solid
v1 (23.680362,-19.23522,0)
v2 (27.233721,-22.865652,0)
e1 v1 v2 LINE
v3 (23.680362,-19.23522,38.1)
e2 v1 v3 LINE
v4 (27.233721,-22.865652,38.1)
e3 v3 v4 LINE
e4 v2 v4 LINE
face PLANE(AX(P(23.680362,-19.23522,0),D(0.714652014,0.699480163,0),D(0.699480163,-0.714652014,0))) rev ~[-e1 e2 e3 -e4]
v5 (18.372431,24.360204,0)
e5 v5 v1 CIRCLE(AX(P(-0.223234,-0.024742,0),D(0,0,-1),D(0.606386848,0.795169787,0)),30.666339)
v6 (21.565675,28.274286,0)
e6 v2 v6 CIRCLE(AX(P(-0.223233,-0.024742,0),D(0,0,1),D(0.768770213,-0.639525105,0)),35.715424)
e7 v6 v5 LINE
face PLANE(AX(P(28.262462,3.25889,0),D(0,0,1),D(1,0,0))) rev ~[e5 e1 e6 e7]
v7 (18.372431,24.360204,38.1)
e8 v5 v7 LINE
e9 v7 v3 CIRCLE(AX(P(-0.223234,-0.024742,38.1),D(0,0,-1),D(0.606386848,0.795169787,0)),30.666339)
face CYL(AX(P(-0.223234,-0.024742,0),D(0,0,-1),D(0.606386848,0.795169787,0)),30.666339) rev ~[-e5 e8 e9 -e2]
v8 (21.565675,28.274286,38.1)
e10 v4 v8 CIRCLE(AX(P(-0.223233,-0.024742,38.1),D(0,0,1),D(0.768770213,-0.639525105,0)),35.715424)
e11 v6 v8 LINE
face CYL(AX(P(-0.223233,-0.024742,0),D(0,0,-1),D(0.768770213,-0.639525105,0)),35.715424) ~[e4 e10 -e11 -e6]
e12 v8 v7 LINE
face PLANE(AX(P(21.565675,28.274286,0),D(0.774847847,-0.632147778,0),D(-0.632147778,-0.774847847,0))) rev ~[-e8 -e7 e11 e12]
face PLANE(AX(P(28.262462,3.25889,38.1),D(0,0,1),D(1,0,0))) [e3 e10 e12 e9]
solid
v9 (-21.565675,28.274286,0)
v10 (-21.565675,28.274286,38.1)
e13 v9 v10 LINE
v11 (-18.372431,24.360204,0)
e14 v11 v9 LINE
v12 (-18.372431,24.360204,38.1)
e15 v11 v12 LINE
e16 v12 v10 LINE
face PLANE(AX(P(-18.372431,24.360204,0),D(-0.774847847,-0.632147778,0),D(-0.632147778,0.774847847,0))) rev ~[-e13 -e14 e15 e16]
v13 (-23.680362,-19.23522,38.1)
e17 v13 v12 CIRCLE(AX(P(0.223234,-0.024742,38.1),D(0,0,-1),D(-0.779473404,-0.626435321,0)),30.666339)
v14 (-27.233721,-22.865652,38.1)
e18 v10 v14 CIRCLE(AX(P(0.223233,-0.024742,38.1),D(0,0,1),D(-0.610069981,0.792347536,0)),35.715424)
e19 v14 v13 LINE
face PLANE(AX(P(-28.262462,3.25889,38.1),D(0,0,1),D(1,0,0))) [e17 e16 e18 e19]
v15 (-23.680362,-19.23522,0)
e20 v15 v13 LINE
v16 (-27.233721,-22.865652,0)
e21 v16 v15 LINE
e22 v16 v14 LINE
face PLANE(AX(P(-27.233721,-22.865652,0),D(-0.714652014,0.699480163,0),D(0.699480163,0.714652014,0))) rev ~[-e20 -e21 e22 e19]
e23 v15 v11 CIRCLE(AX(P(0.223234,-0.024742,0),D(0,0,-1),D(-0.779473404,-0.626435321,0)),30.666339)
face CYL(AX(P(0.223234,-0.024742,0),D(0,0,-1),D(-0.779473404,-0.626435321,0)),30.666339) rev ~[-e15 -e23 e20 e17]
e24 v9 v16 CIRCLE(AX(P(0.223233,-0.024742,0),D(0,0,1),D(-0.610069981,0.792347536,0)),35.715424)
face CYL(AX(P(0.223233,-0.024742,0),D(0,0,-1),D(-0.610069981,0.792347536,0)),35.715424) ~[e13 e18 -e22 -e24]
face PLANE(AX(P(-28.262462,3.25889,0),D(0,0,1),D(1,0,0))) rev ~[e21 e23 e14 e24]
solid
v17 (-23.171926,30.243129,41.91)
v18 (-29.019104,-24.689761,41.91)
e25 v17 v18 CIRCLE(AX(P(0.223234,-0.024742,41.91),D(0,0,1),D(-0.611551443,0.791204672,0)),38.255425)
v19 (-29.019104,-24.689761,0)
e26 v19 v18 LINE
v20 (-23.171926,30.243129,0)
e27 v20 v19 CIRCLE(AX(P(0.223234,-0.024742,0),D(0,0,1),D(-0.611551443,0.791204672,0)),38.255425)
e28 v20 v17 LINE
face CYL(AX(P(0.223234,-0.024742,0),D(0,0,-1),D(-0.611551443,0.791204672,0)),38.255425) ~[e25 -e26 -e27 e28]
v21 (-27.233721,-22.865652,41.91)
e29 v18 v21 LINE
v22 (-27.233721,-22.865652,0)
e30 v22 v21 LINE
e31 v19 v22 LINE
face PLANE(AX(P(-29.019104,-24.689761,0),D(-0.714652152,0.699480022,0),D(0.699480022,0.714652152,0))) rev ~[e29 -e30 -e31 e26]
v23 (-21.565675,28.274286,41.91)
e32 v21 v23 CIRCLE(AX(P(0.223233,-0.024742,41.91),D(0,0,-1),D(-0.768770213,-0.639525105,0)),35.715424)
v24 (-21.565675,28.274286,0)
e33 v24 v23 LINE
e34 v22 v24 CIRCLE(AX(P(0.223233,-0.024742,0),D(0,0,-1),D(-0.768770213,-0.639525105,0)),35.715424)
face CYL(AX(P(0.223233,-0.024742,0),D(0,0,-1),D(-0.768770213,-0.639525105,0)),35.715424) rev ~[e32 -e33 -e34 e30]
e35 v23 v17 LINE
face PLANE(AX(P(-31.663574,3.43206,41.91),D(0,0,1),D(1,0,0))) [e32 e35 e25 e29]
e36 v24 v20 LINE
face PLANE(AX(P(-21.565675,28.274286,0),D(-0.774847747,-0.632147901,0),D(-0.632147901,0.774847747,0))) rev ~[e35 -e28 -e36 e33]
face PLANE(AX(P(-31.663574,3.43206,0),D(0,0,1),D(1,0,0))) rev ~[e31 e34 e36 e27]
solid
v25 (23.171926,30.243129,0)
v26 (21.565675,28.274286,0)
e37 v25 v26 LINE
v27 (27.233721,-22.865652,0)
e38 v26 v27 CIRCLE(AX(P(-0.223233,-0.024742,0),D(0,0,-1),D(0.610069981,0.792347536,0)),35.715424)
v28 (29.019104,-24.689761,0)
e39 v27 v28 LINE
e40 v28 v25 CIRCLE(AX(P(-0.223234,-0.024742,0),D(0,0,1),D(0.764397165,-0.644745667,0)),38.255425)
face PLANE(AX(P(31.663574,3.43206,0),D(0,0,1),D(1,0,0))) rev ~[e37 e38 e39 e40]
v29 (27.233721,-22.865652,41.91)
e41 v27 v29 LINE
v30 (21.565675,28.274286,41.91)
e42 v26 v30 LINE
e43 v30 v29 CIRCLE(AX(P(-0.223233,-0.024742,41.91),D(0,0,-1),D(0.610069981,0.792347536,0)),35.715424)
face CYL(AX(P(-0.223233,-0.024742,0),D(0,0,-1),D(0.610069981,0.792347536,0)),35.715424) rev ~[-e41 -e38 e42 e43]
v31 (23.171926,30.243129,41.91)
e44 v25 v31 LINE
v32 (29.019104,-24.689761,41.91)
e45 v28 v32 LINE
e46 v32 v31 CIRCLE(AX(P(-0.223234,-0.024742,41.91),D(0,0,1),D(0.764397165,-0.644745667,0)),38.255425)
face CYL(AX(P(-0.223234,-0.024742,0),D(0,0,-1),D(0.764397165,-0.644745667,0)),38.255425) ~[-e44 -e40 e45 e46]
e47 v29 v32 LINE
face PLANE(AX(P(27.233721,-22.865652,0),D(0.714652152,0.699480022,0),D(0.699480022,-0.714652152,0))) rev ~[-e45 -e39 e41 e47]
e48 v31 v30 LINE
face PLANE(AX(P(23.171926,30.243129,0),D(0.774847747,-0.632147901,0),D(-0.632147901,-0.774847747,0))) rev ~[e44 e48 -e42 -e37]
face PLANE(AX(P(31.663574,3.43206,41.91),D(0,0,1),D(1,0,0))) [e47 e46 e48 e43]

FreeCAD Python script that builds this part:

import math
import FreeCAD as App
import Part
import Sketcher
Q = App.Units.Quantity

doc = App.newDocument("Part")
body = doc.addObject("PartDesign::Body", "Body")
body.AllowCompound = True

sketch1 = body.newObject("Sketcher::SketchObject", "Sketch")
sketch1.AttachmentSupport = (doc.getObject("XY_Plane"), [""])
sketch1.MapMode = "FlatFace"
sketch1.addGeometry([
    Part.ArcOfCircle(Part.Circle(App.Vector(0.223233, -0.024742, 0), App.Vector(0, 0, 1), 35.715424), math.radians(127.594563), math.radians(219.756417)),
    Part.LineSegment(App.Vector(-21.565675, 28.274286, 0), App.Vector(-23.171926, 30.243129, 0)),
    Part.ArcOfCircle(Part.Circle(App.Vector(0.223234, -0.024742, 0), App.Vector(0, 0, 1), 38.255425), math.radians(127.701767), math.radians(220.146609)),
    Part.LineSegment(App.Vector(-29.019104, -24.689761, 0), App.Vector(-27.233721, -22.865652, 0)),
    Part.LineSegment(App.Vector(23.171926, 30.243129, 0), App.Vector(21.565675, 28.274286, 0)),
    Part.ArcOfCircle(Part.Circle(App.Vector(-0.223233, -0.024742, 0), App.Vector(0, 0, 1), 35.715424), math.radians(-39.756417), math.radians(52.405437)),
    Part.LineSegment(App.Vector(27.233721, -22.865652, 0), App.Vector(29.019104, -24.689761, 0)),
    Part.ArcOfCircle(Part.Circle(App.Vector(-0.223234, -0.024742, 0), App.Vector(0, 0, 1), 38.255425), math.radians(-40.146609), math.radians(52.298233)),
], False)
sketch1.addConstraint([
    Sketcher.Constraint("Coincident", 0, 1, 1, 1),
    Sketcher.Constraint("Coincident", 1, 2, 2, 1),
    Sketcher.Constraint("Coincident", 2, 2, 3, 1),
    Sketcher.Constraint("Coincident", 3, 2, 0, 2),
    Sketcher.Constraint("Coincident", 4, 2, 5, 2),
    Sketcher.Constraint("Coincident", 5, 1, 6, 1),
    Sketcher.Constraint("Coincident", 6, 2, 7, 1),
    Sketcher.Constraint("Coincident", 7, 2, 4, 1),
    Sketcher.Constraint("Coincident", 2, 3, 0, 3),
    Sketcher.Constraint("Coincident", 7, 3, 5, 3),
    Sketcher.Constraint("Equal", 0, 5),
    Sketcher.Constraint("Equal", 2, 7),
    Sketcher.Constraint("Symmetric", 0, 3, 5, 3, -2),
    Sketcher.Constraint("Horizontal", 0, 1, 4, 2),
    Sketcher.Constraint("Horizontal", 3, 2, 5, 1),
    Sketcher.Constraint("Horizontal", 2, 2, 6, 2),
    Sketcher.Constraint("Horizontal", 1, 2, 7, 2),
    Sketcher.Constraint("Radius", 0, 35.715424),
    Sketcher.Constraint("Radius", 2, 38.255425),
    Sketcher.Constraint("Distance", 1, 2.540942),
    Sketcher.Constraint("DistanceY", 0, 3, -1, 1, 0.024742),
    Sketcher.Constraint("DistanceY", -1, 1, 1, 2, 30.243129),
    Sketcher.Constraint("DistanceY", 2, 2, -1, 1, 24.689761),
    Sketcher.Constraint("DistanceX", 3, 2, -1, 1, 27.233721),
    Sketcher.Constraint("DistanceY", 5, 1, -1, 1, 22.865652),
])
pad1 = body.newObject("PartDesign::Pad", "Pad")
pad1.Profile = sketch1
pad1.Length = Q("1.65 in")
body2 = doc.addObject("PartDesign::Body", "Body001")
body2.AllowCompound = True

sketch2 = body2.newObject("Sketcher::SketchObject", "Sketch001")
sketch2.AttachmentSupport = (doc.getObject("XY_Plane001"), [""])
sketch2.MapMode = "FlatFace"
sketch2.addGeometry([
    Part.ArcOfCircle(Part.Circle(App.Vector(0.223234, -0.024742, 0), App.Vector(0, 0, 1), 30.666339), math.radians(127.328705), math.radians(218.787614)),
    Part.LineSegment(App.Vector(-18.372431, 24.360204, 0), App.Vector(-21.565675, 28.274286, 0)),
    Part.ArcOfCircle(Part.Circle(App.Vector(0.223233, -0.024742, 0), App.Vector(0, 0, 1), 35.715424), math.radians(127.594563), math.radians(219.756417)),
    Part.LineSegment(App.Vector(-27.233721, -22.865652, 0), App.Vector(-23.680362, -19.23522, 0)),
    Part.LineSegment(App.Vector(21.565675, 28.274286, 0), App.Vector(18.372431, 24.360204, 0)),
    Part.ArcOfCircle(Part.Circle(App.Vector(-0.223234, -0.024742, 0), App.Vector(0, 0, 1), 30.666339), math.radians(-38.787614), math.radians(52.671295)),
    Part.LineSegment(App.Vector(23.680362, -19.23522, 0), App.Vector(27.233721, -22.865652, 0)),
    Part.ArcOfCircle(Part.Circle(App.Vector(-0.223233, -0.024742, 0), App.Vector(0, 0, 1), 35.715424), math.radians(-39.756417), math.radians(52.405437)),
], False)
sketch2.addConstraint([
    Sketcher.Constraint("Coincident", 0, 1, 1, 1),
    Sketcher.Constraint("Coincident", 1, 2, 2, 1),
    Sketcher.Constraint("Coincident", 2, 2, 3, 1),
    Sketcher.Constraint("Coincident", 3, 2, 0, 2),
    Sketcher.Constraint("Coincident", 4, 2, 5, 2),
    Sketcher.Constraint("Coincident", 5, 1, 6, 1),
    Sketcher.Constraint("Coincident", 6, 2, 7, 1),
    Sketcher.Constraint("Coincident", 7, 2, 4, 1),
    Sketcher.Constraint("Coincident", 2, 3, 0, 3),
    Sketcher.Constraint("Coincident", 7, 3, 5, 3),
    Sketcher.Constraint("Equal", 0, 5),
    Sketcher.Constraint("Equal", 2, 7),
    Sketcher.Constraint("Symmetric", 0, 3, 5, 3, -2),
    Sketcher.Constraint("Horizontal", 0, 1, 4, 2),
    Sketcher.Constraint("Horizontal", 3, 2, 5, 1),
    Sketcher.Constraint("Horizontal", 2, 2, 6, 2),
    Sketcher.Constraint("Horizontal", 1, 2, 7, 2),
    Sketcher.Constraint("Distance", 3, Q("0.2 in")),
    Sketcher.Constraint("Radius", 0, 30.666339),
    Sketcher.Constraint("Radius", 2, 35.715424),
    Sketcher.Constraint("DistanceX", 0, 1, 7, 3, 18.149198),
    Sketcher.Constraint("Distance", 1, 5.05142),
    Sketcher.Constraint("DistanceY", 2, 3, -1, 1, 0.024742),
    Sketcher.Constraint("DistanceX", 0, 1, -1, 1, 18.372431),
    Sketcher.Constraint("DistanceX", 2, 2, -1, 1, 27.233721),
])
pad2 = body2.newObject("PartDesign::Pad", "Pad001")
pad2.Profile = sketch2
pad2.Length = Q("1.5 in")

doc.recompute()
